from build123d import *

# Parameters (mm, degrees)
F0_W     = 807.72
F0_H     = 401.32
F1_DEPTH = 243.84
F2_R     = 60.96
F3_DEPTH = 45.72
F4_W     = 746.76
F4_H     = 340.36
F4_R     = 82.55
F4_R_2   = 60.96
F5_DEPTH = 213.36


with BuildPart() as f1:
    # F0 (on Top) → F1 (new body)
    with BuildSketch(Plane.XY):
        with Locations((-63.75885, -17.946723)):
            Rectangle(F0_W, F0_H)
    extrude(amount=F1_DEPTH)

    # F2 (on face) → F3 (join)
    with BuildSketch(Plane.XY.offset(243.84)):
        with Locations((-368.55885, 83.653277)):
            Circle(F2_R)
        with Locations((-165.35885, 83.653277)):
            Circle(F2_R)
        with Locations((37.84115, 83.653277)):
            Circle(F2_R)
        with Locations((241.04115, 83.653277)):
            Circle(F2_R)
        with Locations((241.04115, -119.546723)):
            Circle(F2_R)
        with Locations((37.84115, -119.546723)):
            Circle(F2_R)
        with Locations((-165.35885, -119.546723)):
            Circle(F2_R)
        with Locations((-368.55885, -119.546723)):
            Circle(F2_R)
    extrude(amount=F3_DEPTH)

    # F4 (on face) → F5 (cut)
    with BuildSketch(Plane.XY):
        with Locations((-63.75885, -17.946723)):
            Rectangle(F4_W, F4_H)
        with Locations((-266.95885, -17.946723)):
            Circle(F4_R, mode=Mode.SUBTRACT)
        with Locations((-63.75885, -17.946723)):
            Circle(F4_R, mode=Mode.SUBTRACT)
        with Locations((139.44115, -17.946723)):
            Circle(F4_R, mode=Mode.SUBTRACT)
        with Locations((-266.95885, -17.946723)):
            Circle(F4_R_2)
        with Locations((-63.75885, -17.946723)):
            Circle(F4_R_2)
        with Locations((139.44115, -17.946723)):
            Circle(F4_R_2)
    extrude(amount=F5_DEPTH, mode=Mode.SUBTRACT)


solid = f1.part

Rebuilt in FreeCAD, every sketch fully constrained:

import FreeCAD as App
import Part
import Sketcher

V = App.Vector
Q = App.Units.Quantity


def add_polygon(sketch, points):
    """Adds a closed chain of lines whose ends are joined by coincident constraints."""
    first, n = sketch.GeometryCount, len(points)
    for a, b in zip(points, points[1:] + points[:1]):
        sketch.addGeometry(Part.LineSegment(App.Vector(*a, 0), App.Vector(*b, 0)), False)
    for i in range(n):
        sketch.addConstraint(Sketcher.Constraint("Coincident", first + i, 2, first + (i + 1) % n, 1))

doc = App.newDocument("Part")
body = doc.addObject("PartDesign::Body", "Body")

sketch1 = body.newObject("Sketcher::SketchObject", "Sketch")
sketch1.AttachmentSupport = (doc.getObject("XY_Plane"), [""])
sketch1.MapMode = "FlatFace"
add_polygon(sketch1, [(-468, 183), (-468, -219), (340, -219), (340, 183)])
sketch1.addConstraint([
    Sketcher.Constraint("Vertical", 0),
    Sketcher.Constraint("Horizontal", 1),
    Sketcher.Constraint("Vertical", 2),
    Sketcher.Constraint("Horizontal", 3),
    Sketcher.Constraint("DistanceX", 1, 1, 1, 2, Q("31.8 in")),
    Sketcher.Constraint("DistanceY", 0, 2, 0, 1, Q("15.8 in")),
    Sketcher.Constraint("DistanceX", 0, 2, -1, 1, 467.61885),
    Sketcher.Constraint("DistanceY", 0, 2, -1, 1, 218.606723),
])
pad1 = body.newObject("PartDesign::Pad", "Pad")
pad1.Profile = sketch1
pad1.Length = Q("9.6 in")

sketch2 = body.newObject("Sketcher::SketchObject", "Sketch001")
sketch2.AttachmentSupport = (doc.getObject("XY_Plane"), [""])
sketch2.MapMode = "FlatFace"
sketch2.AttachmentOffset = App.Placement(V(0, 0, 9.6 * 25.4), App.Rotation())
sketch2.addGeometry([
    Part.Circle(V(-369, 84, 0), V(0, 0, 1), 61),
    Part.Circle(V(-165, 84, 0), V(0, 0, 1), 61),
    Part.Circle(V(38, 84, 0), V(0, 0, 1), 61),
    Part.Circle(V(241, 84, 0), V(0, 0, 1), 61),
    Part.Circle(V(241, -120, 0), V(0, 0, 1), 61),
    Part.Circle(V(38, -120, 0), V(0, 0, 1), 61),
    Part.Circle(V(-165, -120, 0), V(0, 0, 1), 61),
    Part.Circle(V(-369, -120, 0), V(0, 0, 1), 61),
], False)
sketch2.addConstraint([
    Sketcher.Constraint("Equal", 0, 1),
    Sketcher.Constraint("Equal", 1, 2),
    Sketcher.Constraint("Equal", 2, 3),
    Sketcher.Constraint("Equal", 3, 4),
    Sketcher.Constraint("Equal", 4, 5),
    Sketcher.Constraint("Equal", 5, 6),
    Sketcher.Constraint("Equal", 6, 7),
    Sketcher.Constraint("Horizontal", 0, 3, 1, 3),
    Sketcher.Constraint("Horizontal", 1, 3, 2, 3),
    Sketcher.Constraint("Horizontal", 2, 3, 3, 3),
    Sketcher.Constraint("Horizontal", 4, 3, 5, 3),
    Sketcher.Constraint("Horizontal", 5, 3, 6, 3),
    Sketcher.Constraint("Horizontal", 6, 3, 7, 3),
    Sketcher.Constraint("Vertical", 3, 3, 4, 3),
    Sketcher.Constraint("Vertical", 2, 3, 5, 3),
    Sketcher.Constraint("Vertical", 1, 3, 6, 3),
    Sketcher.Constraint("Vertical", 0, 3, 7, 3),
    Sketcher.Constraint("Diameter", 0, Q("4.8 in")),
    Sketcher.Constraint("DistanceX", 0, 3, 1, 3, Q("8 in")),
    Sketcher.Constraint("DistanceX", 1, 3, 2, 3, Q("8 in")),
    Sketcher.Constraint("DistanceX", 2, 3, 3, 3, Q("8 in")),
    Sketcher.Constraint("DistanceY", 4, 3, 3, 3, Q("8 in")),
    Sketcher.Constraint("DistanceX", 0, 3, -1, 1, 368.55885),
    Sketcher.Constraint("DistanceY", -1, 1, 0, 3, 83.653277),
])
pad2 = body.newObject("PartDesign::Pad", "Pad001")
pad2.Profile = sketch2
pad2.Length = Q("1.8 in")

sketch3 = body.newObject("Sketcher::SketchObject", "Sketch002")
sketch3.AttachmentSupport = (doc.getObject("XY_Plane"), [""])
sketch3.MapMode = "FlatFace"
add_polygon(sketch3, [(-437, 152), (-437, -188), (310, -188), (310, 152)])
sketch3.addGeometry(Part.Circle(V(-267, -18, 0), V(0, 0, 1), 83), False)
sketch3.addGeometry(Part.Circle(V(-64, -18, 0), V(0, 0, 1), 83), False)
sketch3.addGeometry(Part.Circle(V(139, -18, 0), V(0, 0, 1), 83), False)
sketch3.addGeometry(Part.Circle(V(-267, -18, 0), V(0, 0, 1), 61), False)
sketch3.addGeometry(Part.Circle(V(-64, -18, 0), V(0, 0, 1), 61), False)
sketch3.addGeometry(Part.Circle(V(139, -18, 0), V(0, 0, 1), 61), False)
sketch3.addConstraint([
    Sketcher.Constraint("Vertical", 0),
    Sketcher.Constraint("Horizontal", 1),
    Sketcher.Constraint("Vertical", 2),
    Sketcher.Constraint("Horizontal", 3),
    Sketcher.Constraint("Coincident", 7, 3, 4, 3),
    Sketcher.Constraint("Coincident", 8, 3, 5, 3),
    Sketcher.Constraint("Coincident", 9, 3, 6, 3),
    Sketcher.Constraint("Equal", 4, 5),
    Sketcher.Constraint("Equal", 5, 6),
    Sketcher.Constraint("Equal", 7, 8),
    Sketcher.Constraint("Equal", 8, 9),
    Sketcher.Constraint("Horizontal", 4, 3, 5, 3),
    Sketcher.Constraint("Horizontal", 5, 3, 6, 3),
    Sketcher.Constraint("Diameter", 4, Q("6.5 in")),
    Sketcher.Constraint("Diameter", 7, Q("4.8 in")),
    Sketcher.Constraint("DistanceX", 1, 1, 1, 2, Q("29.4 in")),
    Sketcher.Constraint("DistanceY", 0, 2, 0, 1, Q("13.4 in")),
    Sketcher.Constraint("DistanceX", 4, 3, 5, 3, Q("8 in")),
    Sketcher.Constraint("DistanceX", 5, 3, 6, 3, Q("8 in")),
    Sketcher.Constraint("DistanceX", 0, 2, 4, 3, Q("6.7 in")),
    Sketcher.Constraint("DistanceY", 0, 2, 4, 3, Q("6.7 in")),
    Sketcher.Constraint("DistanceX", 4, 3, -1, 1, 266.95885),
    Sketcher.Constraint("DistanceY", 4, 3, -1, 1, 17.946723),
])
pocket1 = body.newObject("PartDesign::Pocket", "Pocket")
pocket1.Profile = sketch3
pocket1.Length = Q("8.4 in")
pocket1.Reversed = True

doc.recompute()
